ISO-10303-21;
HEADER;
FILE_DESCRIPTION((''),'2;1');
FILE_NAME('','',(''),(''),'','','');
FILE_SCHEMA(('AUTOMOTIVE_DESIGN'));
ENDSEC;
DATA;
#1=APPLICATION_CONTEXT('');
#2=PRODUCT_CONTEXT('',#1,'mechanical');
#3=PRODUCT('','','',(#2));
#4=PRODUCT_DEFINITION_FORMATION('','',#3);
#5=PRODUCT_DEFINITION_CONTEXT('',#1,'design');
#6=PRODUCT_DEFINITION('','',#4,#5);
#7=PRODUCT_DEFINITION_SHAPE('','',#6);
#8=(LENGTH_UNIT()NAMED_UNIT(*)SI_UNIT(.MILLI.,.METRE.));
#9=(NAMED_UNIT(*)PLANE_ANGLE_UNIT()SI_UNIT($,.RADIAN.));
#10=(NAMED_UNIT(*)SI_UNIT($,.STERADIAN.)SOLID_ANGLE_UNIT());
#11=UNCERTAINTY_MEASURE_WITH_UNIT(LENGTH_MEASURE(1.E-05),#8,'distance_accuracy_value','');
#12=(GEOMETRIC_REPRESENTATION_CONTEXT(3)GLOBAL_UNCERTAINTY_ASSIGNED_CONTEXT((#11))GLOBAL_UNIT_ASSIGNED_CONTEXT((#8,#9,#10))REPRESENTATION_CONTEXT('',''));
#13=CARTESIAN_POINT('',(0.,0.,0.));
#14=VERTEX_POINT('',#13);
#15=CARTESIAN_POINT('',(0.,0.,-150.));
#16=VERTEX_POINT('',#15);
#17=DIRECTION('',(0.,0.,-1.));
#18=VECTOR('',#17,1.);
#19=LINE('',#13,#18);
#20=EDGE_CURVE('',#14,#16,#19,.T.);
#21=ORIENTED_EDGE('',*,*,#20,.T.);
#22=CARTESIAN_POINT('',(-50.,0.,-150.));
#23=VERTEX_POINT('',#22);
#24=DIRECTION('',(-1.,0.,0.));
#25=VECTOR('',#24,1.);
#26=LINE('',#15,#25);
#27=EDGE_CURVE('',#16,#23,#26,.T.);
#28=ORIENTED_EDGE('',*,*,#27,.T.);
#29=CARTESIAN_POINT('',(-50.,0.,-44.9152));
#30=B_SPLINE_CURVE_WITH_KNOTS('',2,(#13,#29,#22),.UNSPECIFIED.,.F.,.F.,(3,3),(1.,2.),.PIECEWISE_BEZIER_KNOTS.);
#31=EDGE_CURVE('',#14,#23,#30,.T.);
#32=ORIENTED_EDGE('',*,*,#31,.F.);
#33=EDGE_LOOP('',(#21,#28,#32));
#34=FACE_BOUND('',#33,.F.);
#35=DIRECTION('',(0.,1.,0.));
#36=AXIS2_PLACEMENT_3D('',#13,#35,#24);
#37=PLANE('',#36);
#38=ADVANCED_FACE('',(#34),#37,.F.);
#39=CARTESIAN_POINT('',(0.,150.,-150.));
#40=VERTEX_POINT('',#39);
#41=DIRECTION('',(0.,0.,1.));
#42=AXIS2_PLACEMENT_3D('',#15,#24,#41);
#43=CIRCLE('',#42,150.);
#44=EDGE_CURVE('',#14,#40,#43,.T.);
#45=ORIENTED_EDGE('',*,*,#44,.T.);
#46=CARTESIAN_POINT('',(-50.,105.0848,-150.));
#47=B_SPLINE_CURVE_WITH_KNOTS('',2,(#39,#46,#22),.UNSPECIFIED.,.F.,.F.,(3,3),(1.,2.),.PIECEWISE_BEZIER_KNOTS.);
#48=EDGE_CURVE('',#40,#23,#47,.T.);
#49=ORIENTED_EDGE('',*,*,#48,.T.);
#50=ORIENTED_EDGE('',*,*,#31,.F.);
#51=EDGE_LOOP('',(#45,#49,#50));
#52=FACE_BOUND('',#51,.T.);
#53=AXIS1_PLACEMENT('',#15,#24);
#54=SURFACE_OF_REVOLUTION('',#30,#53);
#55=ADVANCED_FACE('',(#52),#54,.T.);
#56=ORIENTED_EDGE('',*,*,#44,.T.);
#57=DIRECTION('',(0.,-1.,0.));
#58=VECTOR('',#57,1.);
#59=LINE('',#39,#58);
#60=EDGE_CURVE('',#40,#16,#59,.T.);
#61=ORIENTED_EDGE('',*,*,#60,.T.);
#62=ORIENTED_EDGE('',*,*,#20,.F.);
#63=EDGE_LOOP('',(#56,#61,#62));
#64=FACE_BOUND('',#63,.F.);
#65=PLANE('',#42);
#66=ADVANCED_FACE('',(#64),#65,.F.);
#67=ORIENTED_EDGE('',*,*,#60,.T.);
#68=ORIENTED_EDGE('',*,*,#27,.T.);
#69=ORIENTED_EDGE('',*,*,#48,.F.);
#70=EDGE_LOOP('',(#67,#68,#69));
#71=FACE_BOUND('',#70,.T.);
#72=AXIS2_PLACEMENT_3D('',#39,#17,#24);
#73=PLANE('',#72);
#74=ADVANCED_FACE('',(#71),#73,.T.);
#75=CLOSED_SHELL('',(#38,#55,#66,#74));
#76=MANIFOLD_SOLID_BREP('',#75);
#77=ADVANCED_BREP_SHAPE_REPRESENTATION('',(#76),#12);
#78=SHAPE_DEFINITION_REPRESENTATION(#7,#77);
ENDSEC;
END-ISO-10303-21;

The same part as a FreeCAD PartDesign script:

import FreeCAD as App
import Part
import Sketcher

doc = App.newDocument("Part")
body = doc.addObject("PartDesign::Body", "Body")

# Sketch on XZ plane
sketch1 = body.newObject("Sketcher::SketchObject", "Sketch")
sketch1.AttachmentSupport = (doc.getObject("XZ_Plane"), [""])
sketch1.MapMode = "FlatFace"
sketch1.addGeometry([
    Part.BSplineCurve([App.Vector(0, 0, 0), App.Vector(-50, -44.9152, 0), App.Vector(-50, -150, 0)], [3, 3], [1, 2], False, 2, [1, 1, 1], False),
    Part.LineSegment(App.Vector(0, 0, 0), App.Vector(0, -150, 0)),
    Part.LineSegment(App.Vector(0, -150, 0), App.Vector(-50, -150, 0)),
], False)
sketch1.addGeometry(Part.LineSegment(App.Vector(0, -150, 0), App.Vector(-50, -150, 0)), True)  # axis
sketch1.addConstraint([
    Sketcher.Constraint("Block", 0),
    Sketcher.Constraint("Coincident", 0, 1, 1, 1),
    Sketcher.Constraint("Coincident", 1, 2, 2, 1),
    Sketcher.Constraint("Coincident", 2, 2, 0, 2),
    Sketcher.Constraint("Vertical", 1),
    Sketcher.Constraint("Horizontal", 2),
    Sketcher.Constraint("Horizontal", 3),
    Sketcher.Constraint("Coincident", 3, 1, 1, 2),
    Sketcher.Constraint("Equal", 2, 3),
])
revolution = body.newObject("PartDesign::Revolution", "Revolution")
revolution.Profile = sketch1
revolution.ReferenceAxis = (sketch1, ["Axis0"])
revolution.Angle = 90

doc.recompute()
